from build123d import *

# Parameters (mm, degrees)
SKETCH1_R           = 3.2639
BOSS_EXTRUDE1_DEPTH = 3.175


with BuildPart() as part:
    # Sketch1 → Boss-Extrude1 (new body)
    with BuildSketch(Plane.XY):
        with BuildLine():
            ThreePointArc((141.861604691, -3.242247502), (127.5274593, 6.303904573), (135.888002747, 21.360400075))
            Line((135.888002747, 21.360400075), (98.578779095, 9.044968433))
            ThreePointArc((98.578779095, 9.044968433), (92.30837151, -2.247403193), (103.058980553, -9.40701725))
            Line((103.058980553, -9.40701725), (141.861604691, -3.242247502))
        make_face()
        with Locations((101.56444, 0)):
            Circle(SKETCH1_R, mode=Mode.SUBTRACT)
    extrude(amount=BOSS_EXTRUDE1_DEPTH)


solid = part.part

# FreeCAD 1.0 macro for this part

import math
import FreeCAD as App
import Part
import Sketcher
Q = App.Units.Quantity

doc = App.newDocument("Part")
body = doc.addObject("PartDesign::Body", "Body")

# Sketch on XY plane
sketch1 = doc.addObject("Sketcher::SketchObject", "Sketch")
body.addObject(sketch1)
sketch1.AttachmentSupport = (doc.XY_Plane, [""])
sketch1.MapMode = "FlatFace"
sketch1.addGeometry([
    Part.ArcOfCircle(Part.Circle(App.Vector(139.9, 9.3, 0), App.Vector(0, 0, 1), 12.7), math.radians(108), math.radians(279)),  # 0
    Part.LineSegment(App.Vector(135.9, 21.4, 0), App.Vector(98.6, 9, 0)),  # 1
    Part.ArcOfCircle(Part.Circle(App.Vector(101.6, 0, 0), App.Vector(0, 0, 1), 9.5), math.radians(108), math.radians(279)),  # 2
    Part.LineSegment(App.Vector(103.1, -9.4, 0), App.Vector(141.9, -3.2, 0)),  # 3
    Part.Circle(App.Vector(101.6, 0, 0), App.Vector(0, 0, 1), 3.3),  # 4
], False)
sketch1.addConstraint([
    Sketcher.Constraint("Tangent", 0, 1, 1, 1),
    Sketcher.Constraint("Tangent", 1, 2, 2, 1),
    Sketcher.Constraint("Tangent", 2, 2, 3, 1),
    Sketcher.Constraint("Tangent", 3, 2, 0, 2),
    Sketcher.Constraint("Coincident", 4, 3, 2, 3),
    Sketcher.Constraint("PointOnObject", 2, 3, -1),
    Sketcher.Constraint("Radius", 0, Q("0.5 in")),
    Sketcher.Constraint("Diameter", 4, Q("0.257 in")),
    Sketcher.Constraint("Radius", 2, Q("0.375 in")),
    Sketcher.Constraint("DistanceX", -1, 1, 2, 3, Q("3.9986 in")),
    Sketcher.Constraint("DistanceY", -1, 1, 0, 1, 21.3604),
    Sketcher.Constraint("DistanceX", 1, 2, 2, 2, 4.480201),
])
pad1 = doc.addObject("PartDesign::Pad", "Pad")
body.addObject(pad1)
pad1.Profile = sketch1
pad1.Length = Q("0.125 in")

doc.recompute()
